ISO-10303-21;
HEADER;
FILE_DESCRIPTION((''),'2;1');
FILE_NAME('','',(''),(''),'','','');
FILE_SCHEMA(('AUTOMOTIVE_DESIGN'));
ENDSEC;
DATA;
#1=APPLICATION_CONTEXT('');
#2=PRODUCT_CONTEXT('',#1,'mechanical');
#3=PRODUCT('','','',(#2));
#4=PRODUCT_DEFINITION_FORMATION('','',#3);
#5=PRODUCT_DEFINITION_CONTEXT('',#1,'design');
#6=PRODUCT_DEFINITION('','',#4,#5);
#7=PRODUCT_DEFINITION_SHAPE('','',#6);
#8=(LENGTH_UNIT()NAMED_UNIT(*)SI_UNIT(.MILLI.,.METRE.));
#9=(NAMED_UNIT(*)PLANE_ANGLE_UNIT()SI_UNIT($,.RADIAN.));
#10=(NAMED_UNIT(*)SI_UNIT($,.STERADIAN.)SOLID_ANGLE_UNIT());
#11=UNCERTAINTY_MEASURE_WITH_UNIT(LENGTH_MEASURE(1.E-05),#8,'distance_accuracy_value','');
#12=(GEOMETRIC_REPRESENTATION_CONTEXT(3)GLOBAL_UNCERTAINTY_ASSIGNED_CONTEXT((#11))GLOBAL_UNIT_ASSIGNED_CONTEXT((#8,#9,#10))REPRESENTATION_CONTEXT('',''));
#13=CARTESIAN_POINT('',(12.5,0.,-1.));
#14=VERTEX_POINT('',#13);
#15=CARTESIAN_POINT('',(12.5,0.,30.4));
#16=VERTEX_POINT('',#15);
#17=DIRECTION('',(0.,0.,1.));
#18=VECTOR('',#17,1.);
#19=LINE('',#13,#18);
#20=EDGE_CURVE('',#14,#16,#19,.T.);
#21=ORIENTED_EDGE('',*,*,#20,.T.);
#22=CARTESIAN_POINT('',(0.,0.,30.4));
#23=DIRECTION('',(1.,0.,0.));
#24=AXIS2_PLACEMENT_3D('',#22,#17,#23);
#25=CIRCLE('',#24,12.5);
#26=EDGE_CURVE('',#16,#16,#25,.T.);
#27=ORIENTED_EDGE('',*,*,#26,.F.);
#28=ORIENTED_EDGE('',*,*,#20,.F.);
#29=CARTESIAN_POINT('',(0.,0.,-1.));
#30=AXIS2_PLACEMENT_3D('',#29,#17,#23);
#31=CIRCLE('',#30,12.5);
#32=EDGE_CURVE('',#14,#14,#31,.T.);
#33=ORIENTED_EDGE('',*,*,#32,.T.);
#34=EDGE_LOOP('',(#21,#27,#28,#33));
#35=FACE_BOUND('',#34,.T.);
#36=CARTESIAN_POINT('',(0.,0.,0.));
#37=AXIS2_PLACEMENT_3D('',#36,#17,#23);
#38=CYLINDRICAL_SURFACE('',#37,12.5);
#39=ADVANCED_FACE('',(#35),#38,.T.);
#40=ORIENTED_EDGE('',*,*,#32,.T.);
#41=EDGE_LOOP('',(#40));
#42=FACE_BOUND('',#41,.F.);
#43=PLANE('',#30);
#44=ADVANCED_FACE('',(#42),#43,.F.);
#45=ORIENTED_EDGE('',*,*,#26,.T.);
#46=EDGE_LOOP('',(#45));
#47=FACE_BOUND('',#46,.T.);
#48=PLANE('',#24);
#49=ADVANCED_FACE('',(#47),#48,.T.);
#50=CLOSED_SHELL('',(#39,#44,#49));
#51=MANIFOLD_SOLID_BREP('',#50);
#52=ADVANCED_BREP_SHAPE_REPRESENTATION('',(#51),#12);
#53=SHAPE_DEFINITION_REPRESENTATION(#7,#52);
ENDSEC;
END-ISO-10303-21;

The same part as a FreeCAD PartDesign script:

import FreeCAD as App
import Part
import Sketcher
Q = App.Units.Quantity

doc = App.newDocument("Part")
body = doc.addObject("PartDesign::Body", "Body")

# Sketch on XY plane
sketch1 = body.newObject("Sketcher::SketchObject", "Sketch")
sketch1.AttachmentSupport = (doc.getObject("XY_Plane"), [""])
sketch1.MapMode = "FlatFace"
sketch1.addGeometry(Part.Circle(App.Vector(0, 0, 0), App.Vector(0, 0, 1), 12), False)
sketch1.addConstraint(Sketcher.Constraint("Coincident", 0, 3, -1, 1))
sketch1.addConstraint(Sketcher.Constraint("Diameter", 0, Q("25 mm")))
pad1 = body.newObject("PartDesign::Pad", "Pad")
pad1.Profile = sketch1
pad1.Type = "TwoLengths"
pad1.Length = 30.4
pad1.Length2 = 1

doc.recompute()
